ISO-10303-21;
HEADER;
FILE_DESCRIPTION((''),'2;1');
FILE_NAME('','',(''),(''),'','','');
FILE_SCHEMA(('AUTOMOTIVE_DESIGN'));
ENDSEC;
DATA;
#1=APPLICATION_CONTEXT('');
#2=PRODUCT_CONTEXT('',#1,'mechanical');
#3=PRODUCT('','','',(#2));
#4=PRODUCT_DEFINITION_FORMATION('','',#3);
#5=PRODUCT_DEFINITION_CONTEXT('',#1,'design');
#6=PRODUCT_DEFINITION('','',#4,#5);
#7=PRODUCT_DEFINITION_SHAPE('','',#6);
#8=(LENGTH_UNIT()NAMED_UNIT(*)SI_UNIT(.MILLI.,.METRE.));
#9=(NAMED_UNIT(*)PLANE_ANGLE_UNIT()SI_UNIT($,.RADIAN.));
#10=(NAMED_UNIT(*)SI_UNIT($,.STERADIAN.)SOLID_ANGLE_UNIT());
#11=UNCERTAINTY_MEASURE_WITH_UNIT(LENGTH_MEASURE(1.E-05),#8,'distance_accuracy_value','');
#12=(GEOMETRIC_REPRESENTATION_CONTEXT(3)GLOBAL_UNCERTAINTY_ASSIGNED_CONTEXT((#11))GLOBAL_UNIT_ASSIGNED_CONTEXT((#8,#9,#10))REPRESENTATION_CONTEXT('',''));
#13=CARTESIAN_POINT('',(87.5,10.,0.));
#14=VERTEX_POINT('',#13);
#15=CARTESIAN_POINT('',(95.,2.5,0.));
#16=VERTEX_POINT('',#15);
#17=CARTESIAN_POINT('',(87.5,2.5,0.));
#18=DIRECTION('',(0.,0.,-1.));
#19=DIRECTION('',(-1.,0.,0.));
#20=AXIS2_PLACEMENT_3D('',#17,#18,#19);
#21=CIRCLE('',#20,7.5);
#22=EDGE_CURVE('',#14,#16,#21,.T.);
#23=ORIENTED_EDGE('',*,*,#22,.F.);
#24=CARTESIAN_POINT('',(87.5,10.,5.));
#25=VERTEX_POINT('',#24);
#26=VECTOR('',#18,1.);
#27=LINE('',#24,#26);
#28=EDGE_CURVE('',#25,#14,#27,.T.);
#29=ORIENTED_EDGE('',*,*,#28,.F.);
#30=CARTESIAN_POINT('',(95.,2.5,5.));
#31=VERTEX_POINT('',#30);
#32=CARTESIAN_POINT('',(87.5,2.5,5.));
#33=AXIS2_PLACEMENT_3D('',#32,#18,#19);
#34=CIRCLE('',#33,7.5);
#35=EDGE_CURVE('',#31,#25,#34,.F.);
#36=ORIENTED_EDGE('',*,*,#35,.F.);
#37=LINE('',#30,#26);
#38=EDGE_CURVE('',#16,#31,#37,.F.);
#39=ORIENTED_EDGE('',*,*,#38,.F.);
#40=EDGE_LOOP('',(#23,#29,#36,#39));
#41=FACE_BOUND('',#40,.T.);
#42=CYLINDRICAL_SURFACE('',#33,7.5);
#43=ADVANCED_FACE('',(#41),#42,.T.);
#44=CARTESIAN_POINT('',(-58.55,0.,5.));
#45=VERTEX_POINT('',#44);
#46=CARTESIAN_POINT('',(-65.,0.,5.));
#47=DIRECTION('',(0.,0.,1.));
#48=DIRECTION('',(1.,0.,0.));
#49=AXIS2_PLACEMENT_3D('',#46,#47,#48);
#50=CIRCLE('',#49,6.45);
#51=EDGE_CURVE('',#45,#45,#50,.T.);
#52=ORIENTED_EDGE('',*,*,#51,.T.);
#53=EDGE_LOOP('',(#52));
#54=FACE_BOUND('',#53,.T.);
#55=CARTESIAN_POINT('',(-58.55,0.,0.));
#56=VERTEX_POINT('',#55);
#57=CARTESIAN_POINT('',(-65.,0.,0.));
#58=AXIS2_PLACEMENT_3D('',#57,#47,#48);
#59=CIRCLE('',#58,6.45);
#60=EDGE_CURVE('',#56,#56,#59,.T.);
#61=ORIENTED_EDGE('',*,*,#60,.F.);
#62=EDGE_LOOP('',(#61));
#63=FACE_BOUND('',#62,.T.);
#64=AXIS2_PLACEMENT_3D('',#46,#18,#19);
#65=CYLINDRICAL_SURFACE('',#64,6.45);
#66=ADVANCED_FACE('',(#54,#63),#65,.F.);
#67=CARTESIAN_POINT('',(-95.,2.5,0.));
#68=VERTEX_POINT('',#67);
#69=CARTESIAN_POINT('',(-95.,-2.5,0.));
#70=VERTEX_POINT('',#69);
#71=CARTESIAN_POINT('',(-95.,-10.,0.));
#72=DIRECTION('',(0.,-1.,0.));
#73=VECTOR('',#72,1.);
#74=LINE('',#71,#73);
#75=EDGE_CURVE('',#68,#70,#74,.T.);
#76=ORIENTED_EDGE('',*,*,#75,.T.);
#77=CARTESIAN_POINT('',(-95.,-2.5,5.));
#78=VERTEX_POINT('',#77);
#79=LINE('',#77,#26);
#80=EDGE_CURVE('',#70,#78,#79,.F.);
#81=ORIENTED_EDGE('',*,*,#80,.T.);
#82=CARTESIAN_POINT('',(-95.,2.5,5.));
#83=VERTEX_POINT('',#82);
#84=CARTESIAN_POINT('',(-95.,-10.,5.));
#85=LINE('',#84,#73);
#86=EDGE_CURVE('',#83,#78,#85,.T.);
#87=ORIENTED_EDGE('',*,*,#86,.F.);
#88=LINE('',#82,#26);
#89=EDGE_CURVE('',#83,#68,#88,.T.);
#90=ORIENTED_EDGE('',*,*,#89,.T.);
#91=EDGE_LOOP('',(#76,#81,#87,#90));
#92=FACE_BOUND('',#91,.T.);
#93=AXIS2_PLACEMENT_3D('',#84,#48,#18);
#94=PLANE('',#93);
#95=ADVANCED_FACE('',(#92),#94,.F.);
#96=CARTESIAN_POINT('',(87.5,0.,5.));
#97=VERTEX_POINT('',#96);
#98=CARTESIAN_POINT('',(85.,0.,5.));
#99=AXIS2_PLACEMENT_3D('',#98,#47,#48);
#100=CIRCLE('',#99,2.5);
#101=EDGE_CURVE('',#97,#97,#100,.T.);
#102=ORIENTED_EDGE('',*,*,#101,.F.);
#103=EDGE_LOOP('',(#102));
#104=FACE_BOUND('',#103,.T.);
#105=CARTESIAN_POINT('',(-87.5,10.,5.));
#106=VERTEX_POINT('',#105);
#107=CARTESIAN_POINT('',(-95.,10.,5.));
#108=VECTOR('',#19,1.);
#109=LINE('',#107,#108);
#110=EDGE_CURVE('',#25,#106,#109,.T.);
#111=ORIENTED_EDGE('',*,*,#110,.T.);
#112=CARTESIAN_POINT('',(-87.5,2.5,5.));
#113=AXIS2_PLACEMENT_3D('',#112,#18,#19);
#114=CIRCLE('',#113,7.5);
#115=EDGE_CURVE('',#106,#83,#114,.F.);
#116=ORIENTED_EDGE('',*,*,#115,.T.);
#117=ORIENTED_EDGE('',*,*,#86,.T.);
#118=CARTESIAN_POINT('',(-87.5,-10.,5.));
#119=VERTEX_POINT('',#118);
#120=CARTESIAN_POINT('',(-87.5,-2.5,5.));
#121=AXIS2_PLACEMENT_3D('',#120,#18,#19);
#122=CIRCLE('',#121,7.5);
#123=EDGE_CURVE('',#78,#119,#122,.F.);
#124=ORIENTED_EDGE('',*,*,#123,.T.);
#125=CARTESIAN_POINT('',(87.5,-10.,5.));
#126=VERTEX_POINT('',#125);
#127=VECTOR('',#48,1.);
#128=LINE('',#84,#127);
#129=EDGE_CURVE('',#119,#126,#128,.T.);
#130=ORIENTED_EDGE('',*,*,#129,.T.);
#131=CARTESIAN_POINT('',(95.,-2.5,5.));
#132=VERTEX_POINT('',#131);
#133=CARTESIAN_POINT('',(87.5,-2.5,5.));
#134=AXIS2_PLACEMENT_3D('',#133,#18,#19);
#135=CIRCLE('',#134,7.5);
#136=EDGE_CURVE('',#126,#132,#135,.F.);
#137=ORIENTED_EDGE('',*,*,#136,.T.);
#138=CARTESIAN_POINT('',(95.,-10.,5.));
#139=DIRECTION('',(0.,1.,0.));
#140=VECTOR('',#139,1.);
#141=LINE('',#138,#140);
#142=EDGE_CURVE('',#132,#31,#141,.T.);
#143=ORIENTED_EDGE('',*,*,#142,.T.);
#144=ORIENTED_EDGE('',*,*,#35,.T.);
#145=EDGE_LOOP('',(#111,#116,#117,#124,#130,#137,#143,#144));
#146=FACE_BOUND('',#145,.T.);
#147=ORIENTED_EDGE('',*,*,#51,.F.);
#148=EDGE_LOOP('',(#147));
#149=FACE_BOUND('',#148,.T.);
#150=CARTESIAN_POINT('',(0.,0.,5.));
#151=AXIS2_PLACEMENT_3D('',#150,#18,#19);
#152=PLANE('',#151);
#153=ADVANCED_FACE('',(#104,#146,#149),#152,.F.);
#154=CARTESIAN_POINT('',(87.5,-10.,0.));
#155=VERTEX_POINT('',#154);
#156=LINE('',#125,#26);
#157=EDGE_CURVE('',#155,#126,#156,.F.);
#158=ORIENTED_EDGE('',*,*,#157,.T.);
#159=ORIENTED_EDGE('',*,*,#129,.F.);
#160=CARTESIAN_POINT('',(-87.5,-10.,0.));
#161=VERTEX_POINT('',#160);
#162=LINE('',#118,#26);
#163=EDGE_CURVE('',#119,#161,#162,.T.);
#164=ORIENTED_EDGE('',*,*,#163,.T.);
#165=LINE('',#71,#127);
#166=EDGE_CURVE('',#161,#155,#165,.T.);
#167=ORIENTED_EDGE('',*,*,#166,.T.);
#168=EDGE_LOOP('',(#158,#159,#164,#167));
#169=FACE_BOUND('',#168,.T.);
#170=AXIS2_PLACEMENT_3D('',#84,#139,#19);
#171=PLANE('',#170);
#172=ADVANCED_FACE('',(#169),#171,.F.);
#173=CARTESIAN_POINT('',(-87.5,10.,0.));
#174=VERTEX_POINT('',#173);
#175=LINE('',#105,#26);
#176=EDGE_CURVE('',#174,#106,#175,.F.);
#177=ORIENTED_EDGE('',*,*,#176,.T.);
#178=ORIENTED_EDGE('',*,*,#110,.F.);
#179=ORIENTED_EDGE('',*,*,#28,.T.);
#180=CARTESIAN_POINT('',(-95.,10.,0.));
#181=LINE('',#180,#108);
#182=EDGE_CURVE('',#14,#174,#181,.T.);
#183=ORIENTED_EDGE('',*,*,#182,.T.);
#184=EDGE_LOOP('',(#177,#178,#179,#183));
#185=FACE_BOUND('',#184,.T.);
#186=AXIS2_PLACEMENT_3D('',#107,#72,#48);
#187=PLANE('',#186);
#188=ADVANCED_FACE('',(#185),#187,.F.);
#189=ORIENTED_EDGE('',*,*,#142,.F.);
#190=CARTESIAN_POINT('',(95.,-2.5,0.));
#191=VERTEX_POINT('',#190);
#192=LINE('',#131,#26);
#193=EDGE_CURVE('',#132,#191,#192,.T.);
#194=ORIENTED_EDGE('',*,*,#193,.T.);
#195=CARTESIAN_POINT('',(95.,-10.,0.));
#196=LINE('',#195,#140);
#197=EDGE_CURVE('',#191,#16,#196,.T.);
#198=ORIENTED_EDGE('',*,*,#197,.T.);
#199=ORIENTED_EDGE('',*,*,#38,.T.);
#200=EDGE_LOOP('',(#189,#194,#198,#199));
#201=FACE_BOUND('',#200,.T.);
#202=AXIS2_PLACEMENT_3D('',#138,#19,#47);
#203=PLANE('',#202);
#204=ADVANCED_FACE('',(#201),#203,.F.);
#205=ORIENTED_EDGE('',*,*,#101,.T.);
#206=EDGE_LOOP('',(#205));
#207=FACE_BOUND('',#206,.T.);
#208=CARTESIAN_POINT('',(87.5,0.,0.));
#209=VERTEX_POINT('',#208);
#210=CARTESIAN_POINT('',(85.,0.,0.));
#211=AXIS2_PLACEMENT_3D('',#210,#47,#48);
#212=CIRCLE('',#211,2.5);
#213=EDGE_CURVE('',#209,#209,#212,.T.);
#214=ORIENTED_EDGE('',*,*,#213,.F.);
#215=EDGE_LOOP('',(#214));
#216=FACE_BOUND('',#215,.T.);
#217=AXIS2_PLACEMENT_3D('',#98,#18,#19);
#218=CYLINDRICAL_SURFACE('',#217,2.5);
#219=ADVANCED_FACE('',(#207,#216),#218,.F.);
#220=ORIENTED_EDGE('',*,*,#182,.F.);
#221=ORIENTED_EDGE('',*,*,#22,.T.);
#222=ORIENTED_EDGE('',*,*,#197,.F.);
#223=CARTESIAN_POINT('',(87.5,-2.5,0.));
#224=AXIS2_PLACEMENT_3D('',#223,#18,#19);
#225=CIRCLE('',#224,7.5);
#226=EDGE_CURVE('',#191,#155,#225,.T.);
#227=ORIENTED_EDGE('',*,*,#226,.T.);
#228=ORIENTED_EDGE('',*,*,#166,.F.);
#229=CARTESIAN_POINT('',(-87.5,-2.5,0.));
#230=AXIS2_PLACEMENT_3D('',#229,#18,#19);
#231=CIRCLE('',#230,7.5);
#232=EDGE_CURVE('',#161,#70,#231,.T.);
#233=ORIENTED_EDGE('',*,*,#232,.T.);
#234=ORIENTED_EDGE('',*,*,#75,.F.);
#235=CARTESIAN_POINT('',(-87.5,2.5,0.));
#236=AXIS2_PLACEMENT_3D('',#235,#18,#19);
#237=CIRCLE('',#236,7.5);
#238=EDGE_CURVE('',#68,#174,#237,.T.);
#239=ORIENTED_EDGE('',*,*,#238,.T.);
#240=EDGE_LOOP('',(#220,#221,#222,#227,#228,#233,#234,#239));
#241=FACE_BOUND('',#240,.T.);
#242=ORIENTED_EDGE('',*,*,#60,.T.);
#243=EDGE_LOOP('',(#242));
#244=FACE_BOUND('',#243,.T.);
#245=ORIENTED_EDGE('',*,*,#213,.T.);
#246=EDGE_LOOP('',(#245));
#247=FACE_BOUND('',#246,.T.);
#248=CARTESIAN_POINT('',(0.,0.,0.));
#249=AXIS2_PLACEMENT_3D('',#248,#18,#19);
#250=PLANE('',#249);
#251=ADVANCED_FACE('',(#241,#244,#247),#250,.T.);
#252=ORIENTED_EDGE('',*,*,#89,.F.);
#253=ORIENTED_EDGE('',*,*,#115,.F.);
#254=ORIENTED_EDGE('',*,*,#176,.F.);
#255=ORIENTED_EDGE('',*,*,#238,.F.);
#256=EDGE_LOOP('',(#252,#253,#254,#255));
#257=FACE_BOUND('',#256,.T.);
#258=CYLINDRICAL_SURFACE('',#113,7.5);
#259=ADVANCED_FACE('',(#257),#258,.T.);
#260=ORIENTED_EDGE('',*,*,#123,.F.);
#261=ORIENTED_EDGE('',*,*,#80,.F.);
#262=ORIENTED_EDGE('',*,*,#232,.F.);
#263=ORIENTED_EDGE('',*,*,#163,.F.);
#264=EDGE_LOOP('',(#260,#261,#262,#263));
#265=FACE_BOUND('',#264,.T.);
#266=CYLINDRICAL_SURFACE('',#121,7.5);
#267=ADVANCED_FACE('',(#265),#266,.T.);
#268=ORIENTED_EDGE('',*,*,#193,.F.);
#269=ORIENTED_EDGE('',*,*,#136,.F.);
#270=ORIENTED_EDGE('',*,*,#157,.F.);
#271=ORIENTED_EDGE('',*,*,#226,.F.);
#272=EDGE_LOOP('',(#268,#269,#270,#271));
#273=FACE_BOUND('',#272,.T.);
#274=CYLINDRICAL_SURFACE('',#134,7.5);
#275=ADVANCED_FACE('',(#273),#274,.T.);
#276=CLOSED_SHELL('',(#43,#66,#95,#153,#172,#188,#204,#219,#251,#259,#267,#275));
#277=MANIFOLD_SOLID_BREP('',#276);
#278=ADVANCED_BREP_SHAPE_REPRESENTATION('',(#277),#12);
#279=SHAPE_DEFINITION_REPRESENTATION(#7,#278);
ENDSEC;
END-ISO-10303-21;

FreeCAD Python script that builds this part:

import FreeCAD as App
import Part
import Sketcher
Q = App.Units.Quantity


def edges_at(feature, points):
    """Names of the edges that pass closest to the given points."""
    edges = feature.Shape.Edges
    near = lambda p: min(range(len(edges)), key=lambda i: edges[i].distToShape(Part.Vertex(*p))[0])
    return sorted({f"Edge{near(p) + 1}" for p in points})

doc = App.newDocument("Part")
body = doc.addObject("PartDesign::Body", "Body")

sketch1 = body.newObject("Sketcher::SketchObject", "Sketch")
sketch1.AttachmentSupport = (doc.getObject("XY_Plane"), [""])
sketch1.MapMode = "FlatFace"
sketch1.addGeometry([
    Part.LineSegment(App.Vector(-95, 10, 0), App.Vector(-95, -10, 0)),
    Part.LineSegment(App.Vector(-95, -10, 0), App.Vector(95, -10, 0)),
    Part.LineSegment(App.Vector(95, -10, 0), App.Vector(95, 10, 0)),
    Part.LineSegment(App.Vector(95, 10, 0), App.Vector(-95, 10, 0)),
    Part.Circle(App.Vector(-65, 0, 0), App.Vector(0, 0, 1), 6.5),
    Part.Circle(App.Vector(85, 0, 0), App.Vector(0, 0, 1), 2.5),
], False)
sketch1.addConstraint([
    Sketcher.Constraint("Coincident", 0, 2, 1, 1),
    Sketcher.Constraint("Coincident", 1, 2, 2, 1),
    Sketcher.Constraint("Coincident", 2, 2, 3, 1),
    Sketcher.Constraint("Coincident", 3, 2, 0, 1),
    Sketcher.Constraint("Vertical", 0),
    Sketcher.Constraint("Horizontal", 1),
    Sketcher.Constraint("Vertical", 2),
    Sketcher.Constraint("Horizontal", 3),
    Sketcher.Constraint("Symmetric", 0, 2, 2, 2, -1, 1),
    Sketcher.Constraint("PointOnObject", 4, 3, -1),
    Sketcher.Constraint("PointOnObject", 5, 3, -1),
    Sketcher.Constraint("Diameter", 5, Q("5 mm")),
    Sketcher.Constraint("Diameter", 4, Q("12.9 mm")),
    Sketcher.Constraint("DistanceX", 1, 1, 1, 2, Q("190 mm")),
    Sketcher.Constraint("DistanceY", 0, 2, 0, 1, Q("20 mm")),
    Sketcher.Constraint("DistanceX", 4, 3, -1, 1, Q("65 mm")),
    Sketcher.Constraint("DistanceX", -1, 1, 5, 3, Q("85 mm")),
])
pad1 = body.newObject("PartDesign::Pad", "Pad")
pad1.Profile = sketch1
pad1.Length = 5
doc.recompute()

fillet = body.newObject("PartDesign::Fillet", "Fillet")
fillet.Base = (pad1, edges_at(pad1, [
    (-95, 10, 2.5),
    (95, 10, 2.5),
    (95, -10, 2.5),
    (-95, -10, 2.5),
]))
fillet.Radius = 7.5

doc.recompute()
